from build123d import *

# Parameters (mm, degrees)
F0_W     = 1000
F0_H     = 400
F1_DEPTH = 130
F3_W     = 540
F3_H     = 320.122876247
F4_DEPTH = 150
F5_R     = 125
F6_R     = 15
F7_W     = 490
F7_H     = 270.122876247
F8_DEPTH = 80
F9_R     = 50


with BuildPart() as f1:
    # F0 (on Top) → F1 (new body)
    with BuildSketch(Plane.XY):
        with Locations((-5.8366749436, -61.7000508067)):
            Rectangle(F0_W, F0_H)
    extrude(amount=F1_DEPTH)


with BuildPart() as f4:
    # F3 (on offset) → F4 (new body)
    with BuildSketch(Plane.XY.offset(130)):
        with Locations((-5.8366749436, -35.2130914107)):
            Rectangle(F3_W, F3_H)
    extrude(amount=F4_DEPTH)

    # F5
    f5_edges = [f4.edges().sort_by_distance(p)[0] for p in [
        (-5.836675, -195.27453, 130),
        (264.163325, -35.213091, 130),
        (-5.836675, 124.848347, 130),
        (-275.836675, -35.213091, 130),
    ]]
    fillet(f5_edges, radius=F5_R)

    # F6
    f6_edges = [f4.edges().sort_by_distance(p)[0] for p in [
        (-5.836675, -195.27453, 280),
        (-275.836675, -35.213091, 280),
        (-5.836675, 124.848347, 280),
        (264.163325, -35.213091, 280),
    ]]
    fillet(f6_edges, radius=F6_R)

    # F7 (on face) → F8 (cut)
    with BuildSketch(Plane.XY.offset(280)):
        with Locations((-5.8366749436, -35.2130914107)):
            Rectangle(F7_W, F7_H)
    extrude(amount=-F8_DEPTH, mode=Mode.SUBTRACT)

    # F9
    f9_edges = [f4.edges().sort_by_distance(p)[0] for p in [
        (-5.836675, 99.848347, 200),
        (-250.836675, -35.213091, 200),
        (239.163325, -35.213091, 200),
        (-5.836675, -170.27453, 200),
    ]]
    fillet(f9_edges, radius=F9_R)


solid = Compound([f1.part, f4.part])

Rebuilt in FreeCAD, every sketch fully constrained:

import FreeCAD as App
import Part
import Sketcher

V = App.Vector
Q = App.Units.Quantity


def edges_at(feature, points):
    """Names of the edges that pass closest to the given points."""
    edges = feature.Shape.Edges
    near = lambda p: min(range(len(edges)), key=lambda i: edges[i].distToShape(Part.Vertex(*p))[0])
    return sorted({f"Edge{near(p) + 1}" for p in points})

doc = App.newDocument("Part")
body = doc.addObject("PartDesign::Body", "Body")

# Sketch on XY plane
sketch1 = doc.addObject("Sketcher::SketchObject", "Sketch")
body.addObject(sketch1)
sketch1.AttachmentSupport = (doc.XY_Plane, [""])
sketch1.MapMode = "FlatFace"
sketch1.addGeometry([
    Part.LineSegment(V(-506, 138, 0), V(-506, -262, 0)),
    Part.LineSegment(V(-506, -262, 0), V(494, -262, 0)),
    Part.LineSegment(V(494, -262, 0), V(494, 138, 0)),
    Part.LineSegment(V(494, 138, 0), V(-506, 138, 0)),
], False)
sketch1.addConstraint([
    Sketcher.Constraint("Coincident", 0, 2, 1, 1),
    Sketcher.Constraint("Coincident", 1, 2, 2, 1),
    Sketcher.Constraint("Coincident", 2, 2, 3, 1),
    Sketcher.Constraint("Coincident", 3, 2, 0, 1),
    Sketcher.Constraint("Vertical", 0),
    Sketcher.Constraint("Horizontal", 1),
    Sketcher.Constraint("Vertical", 2),
    Sketcher.Constraint("Horizontal", 3),
    Sketcher.Constraint("DistanceX", 1, 1, 1, 2, Q("1000 mm")),
    Sketcher.Constraint("DistanceY", 0, 2, 0, 1, Q("400 mm")),
    Sketcher.Constraint("DistanceY", 0, 2, -1, 1, Q("261.700051 mm")),
    Sketcher.Constraint("DistanceX", 0, 2, -1, 1, Q("505.836675 mm")),
])
pad1 = doc.addObject("PartDesign::Pad", "Pad")
body.addObject(pad1)
pad1.Profile = sketch1
pad1.Length = 130
body2 = doc.addObject("PartDesign::Body", "Body001")

# Sketch on XY plane
sketch2 = doc.addObject("Sketcher::SketchObject", "Sketch001")
body2.addObject(sketch2)
sketch2.AttachmentSupport = (doc.getObject("XY_Plane001"), [""])
sketch2.MapMode = "FlatFace"
sketch2.AttachmentOffset = App.Placement(V(0, 0, 130), App.Rotation())
sketch2.addGeometry([
    Part.LineSegment(V(-276, 125, 0), V(-276, -195, 0)),
    Part.LineSegment(V(-276, -195, 0), V(264, -195, 0)),
    Part.LineSegment(V(264, -195, 0), V(264, 125, 0)),
    Part.LineSegment(V(264, 125, 0), V(-276, 125, 0)),
], False)
sketch2.addConstraint([
    Sketcher.Constraint("Coincident", 0, 2, 1, 1),
    Sketcher.Constraint("Coincident", 1, 2, 2, 1),
    Sketcher.Constraint("Coincident", 2, 2, 3, 1),
    Sketcher.Constraint("Coincident", 3, 2, 0, 1),
    Sketcher.Constraint("Vertical", 0),
    Sketcher.Constraint("Horizontal", 1),
    Sketcher.Constraint("Vertical", 2),
    Sketcher.Constraint("Horizontal", 3),
    Sketcher.Constraint("DistanceX", 1, 1, 1, 2, Q("540 mm")),
    Sketcher.Constraint("DistanceY", 0, 2, 0, 1, Q("320.122876 mm")),
    Sketcher.Constraint("DistanceY", 0, 2, -1, 1, Q("195.27453 mm")),
    Sketcher.Constraint("DistanceX", 0, 2, -1, 1, Q("275.836675 mm")),
])
pad2 = doc.addObject("PartDesign::Pad", "Pad001")
body2.addObject(pad2)
pad2.Profile = sketch2
pad2.Length = 150
doc.recompute()

fillet = doc.addObject("PartDesign::Fillet", "Fillet")
body2.addObject(fillet)
fillet.Base = (pad2, edges_at(pad2, [
    (-5.837, -195.275, 130),
    (264.163, -35.213, 130),
    (-5.837, 124.848, 130),
    (-275.837, -35.213, 130),
]))
fillet.Radius = 125
doc.recompute()

fillet2 = doc.addObject("PartDesign::Fillet", "Fillet001")
body2.addObject(fillet2)
fillet2.Base = (fillet, edges_at(fillet, [
    (-5.837, -195.275, 280),
    (-275.837, -35.213, 280),
    (-5.837, 124.848, 280),
    (264.163, -35.213, 280),
]))
fillet2.Radius = 15

# Sketch on XY plane
sketch3 = doc.addObject("Sketcher::SketchObject", "Sketch002")
body2.addObject(sketch3)
sketch3.AttachmentSupport = (doc.getObject("XY_Plane001"), [""])
sketch3.MapMode = "FlatFace"
sketch3.AttachmentOffset = App.Placement(V(0, 0, 280), App.Rotation())
sketch3.addGeometry([
    Part.LineSegment(V(-251, 100, 0), V(-251, -170, 0)),
    Part.LineSegment(V(-251, -170, 0), V(239, -170, 0)),
    Part.LineSegment(V(239, -170, 0), V(239, 100, 0)),
    Part.LineSegment(V(239, 100, 0), V(-251, 100, 0)),
], False)
sketch3.addConstraint([
    Sketcher.Constraint("Coincident", 0, 2, 1, 1),
    Sketcher.Constraint("Coincident", 1, 2, 2, 1),
    Sketcher.Constraint("Coincident", 2, 2, 3, 1),
    Sketcher.Constraint("Coincident", 3, 2, 0, 1),
    Sketcher.Constraint("Vertical", 0),
    Sketcher.Constraint("Horizontal", 1),
    Sketcher.Constraint("Vertical", 2),
    Sketcher.Constraint("Horizontal", 3),
    Sketcher.Constraint("DistanceX", 1, 1, 1, 2, Q("490 mm")),
    Sketcher.Constraint("DistanceY", 0, 2, 0, 1, Q("270.122876 mm")),
    Sketcher.Constraint("DistanceY", 0, 2, -1, 1, Q("170.27453 mm")),
    Sketcher.Constraint("DistanceX", 0, 2, -1, 1, Q("250.836675 mm")),
])
pocket1 = doc.addObject("PartDesign::Pocket", "Pocket")
body2.addObject(pocket1)
pocket1.Profile = sketch3
pocket1.Length = 80
doc.recompute()

fillet3 = doc.addObject("PartDesign::Fillet", "Fillet002")
body2.addObject(fillet3)
fillet3.Base = (pocket1, edges_at(pocket1, [
    (-5.837, 99.848, 200),
    (-250.837, -35.213, 200),
    (239.163, -35.213, 200),
    (-5.837, -170.275, 200),
]))
fillet3.Radius = 50

doc.recompute()
